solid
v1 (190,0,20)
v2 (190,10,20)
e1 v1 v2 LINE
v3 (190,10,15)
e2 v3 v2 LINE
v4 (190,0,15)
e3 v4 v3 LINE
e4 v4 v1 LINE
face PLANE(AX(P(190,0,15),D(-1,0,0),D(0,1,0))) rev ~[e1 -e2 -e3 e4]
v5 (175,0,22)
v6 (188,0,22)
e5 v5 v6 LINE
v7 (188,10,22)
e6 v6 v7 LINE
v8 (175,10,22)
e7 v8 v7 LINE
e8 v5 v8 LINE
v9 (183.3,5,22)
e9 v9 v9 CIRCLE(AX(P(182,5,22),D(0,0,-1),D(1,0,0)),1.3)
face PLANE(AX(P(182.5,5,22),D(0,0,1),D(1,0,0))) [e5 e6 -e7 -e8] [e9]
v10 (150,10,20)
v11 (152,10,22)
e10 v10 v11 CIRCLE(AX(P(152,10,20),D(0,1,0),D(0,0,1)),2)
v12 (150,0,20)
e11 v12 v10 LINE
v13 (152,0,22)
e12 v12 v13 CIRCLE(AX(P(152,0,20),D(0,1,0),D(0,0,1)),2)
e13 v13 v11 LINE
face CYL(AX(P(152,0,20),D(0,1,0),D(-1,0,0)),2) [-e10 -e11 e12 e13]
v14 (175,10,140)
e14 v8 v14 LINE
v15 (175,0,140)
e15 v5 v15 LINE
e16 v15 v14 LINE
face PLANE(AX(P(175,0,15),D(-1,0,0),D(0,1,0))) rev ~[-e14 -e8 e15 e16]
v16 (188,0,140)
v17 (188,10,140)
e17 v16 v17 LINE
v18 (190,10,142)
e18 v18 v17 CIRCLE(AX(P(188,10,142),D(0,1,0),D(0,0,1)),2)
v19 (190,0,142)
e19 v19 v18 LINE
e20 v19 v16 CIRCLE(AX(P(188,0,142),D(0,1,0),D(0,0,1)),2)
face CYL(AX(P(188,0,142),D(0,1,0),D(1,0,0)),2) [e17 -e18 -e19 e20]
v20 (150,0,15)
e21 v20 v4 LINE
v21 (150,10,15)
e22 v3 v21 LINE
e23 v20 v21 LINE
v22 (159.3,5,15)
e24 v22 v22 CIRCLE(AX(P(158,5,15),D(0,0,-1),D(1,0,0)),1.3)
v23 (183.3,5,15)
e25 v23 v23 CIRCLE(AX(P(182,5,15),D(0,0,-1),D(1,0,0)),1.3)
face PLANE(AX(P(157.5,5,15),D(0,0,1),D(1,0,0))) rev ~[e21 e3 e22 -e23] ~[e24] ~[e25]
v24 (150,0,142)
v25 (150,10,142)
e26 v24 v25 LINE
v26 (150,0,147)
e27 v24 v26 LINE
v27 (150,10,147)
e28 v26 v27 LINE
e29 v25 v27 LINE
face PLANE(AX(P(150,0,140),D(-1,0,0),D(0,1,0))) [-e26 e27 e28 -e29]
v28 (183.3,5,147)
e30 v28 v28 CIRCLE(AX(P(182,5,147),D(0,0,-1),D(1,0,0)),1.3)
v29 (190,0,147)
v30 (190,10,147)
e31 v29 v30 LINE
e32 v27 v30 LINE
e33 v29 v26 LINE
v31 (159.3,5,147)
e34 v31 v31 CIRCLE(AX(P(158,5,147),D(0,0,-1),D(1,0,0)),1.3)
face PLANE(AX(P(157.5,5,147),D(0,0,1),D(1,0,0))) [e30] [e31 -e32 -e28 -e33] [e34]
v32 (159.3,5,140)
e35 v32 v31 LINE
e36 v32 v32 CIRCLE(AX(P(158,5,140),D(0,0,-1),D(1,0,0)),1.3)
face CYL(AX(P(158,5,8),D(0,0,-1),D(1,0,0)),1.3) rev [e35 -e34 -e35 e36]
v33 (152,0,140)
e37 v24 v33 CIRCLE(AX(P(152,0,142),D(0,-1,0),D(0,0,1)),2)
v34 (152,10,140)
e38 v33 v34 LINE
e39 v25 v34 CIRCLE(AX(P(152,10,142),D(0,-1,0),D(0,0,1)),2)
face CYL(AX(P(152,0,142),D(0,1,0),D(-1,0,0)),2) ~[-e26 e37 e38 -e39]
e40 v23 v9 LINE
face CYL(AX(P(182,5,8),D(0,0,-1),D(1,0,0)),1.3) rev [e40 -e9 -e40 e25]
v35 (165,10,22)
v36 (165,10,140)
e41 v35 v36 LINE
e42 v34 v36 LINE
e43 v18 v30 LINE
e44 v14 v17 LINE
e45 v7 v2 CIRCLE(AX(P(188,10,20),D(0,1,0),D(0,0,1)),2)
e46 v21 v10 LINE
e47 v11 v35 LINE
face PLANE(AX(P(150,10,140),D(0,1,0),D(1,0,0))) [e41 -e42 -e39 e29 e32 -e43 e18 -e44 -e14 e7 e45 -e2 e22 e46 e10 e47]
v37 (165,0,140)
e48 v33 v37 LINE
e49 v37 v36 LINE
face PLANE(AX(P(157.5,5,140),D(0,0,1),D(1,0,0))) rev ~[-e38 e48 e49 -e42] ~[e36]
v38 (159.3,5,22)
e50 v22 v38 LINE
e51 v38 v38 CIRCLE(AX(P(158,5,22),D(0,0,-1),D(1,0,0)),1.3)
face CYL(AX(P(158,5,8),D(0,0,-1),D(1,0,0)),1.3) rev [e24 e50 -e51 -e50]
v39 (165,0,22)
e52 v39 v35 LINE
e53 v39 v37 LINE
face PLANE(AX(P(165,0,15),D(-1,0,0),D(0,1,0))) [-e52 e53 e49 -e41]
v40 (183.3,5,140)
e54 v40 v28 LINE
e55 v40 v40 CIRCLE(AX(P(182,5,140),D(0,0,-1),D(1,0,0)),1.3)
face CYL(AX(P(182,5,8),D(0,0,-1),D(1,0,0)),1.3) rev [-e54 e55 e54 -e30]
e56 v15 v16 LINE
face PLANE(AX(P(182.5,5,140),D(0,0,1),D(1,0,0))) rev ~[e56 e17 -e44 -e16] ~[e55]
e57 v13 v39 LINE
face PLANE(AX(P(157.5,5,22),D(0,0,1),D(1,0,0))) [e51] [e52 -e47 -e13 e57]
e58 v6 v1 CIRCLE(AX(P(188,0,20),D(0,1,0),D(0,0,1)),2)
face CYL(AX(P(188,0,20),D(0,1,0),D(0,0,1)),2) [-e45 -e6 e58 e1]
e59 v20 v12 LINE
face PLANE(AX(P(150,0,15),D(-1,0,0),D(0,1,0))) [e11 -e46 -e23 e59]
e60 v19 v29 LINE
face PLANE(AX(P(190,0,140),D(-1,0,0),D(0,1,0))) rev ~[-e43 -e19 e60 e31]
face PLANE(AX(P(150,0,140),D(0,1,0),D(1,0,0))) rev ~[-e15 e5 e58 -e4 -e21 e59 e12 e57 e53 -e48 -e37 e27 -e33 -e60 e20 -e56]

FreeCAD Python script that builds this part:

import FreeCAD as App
import Part
import Sketcher
Q = App.Units.Quantity


def edges_at(feature, points):
    """Names of the edges that pass closest to the given points."""
    edges = feature.Shape.Edges
    near = lambda p: min(range(len(edges)), key=lambda i: edges[i].distToShape(Part.Vertex(*p))[0])
    return sorted({f"Edge{near(p) + 1}" for p in points})


def add_polygon(sketch, points):
    """Adds a closed chain of lines whose ends are joined by coincident constraints."""
    first, n = sketch.GeometryCount, len(points)
    for a, b in zip(points, points[1:] + points[:1]):
        sketch.addGeometry(Part.LineSegment(App.Vector(*a, 0), App.Vector(*b, 0)), False)
    for i in range(n):
        sketch.addConstraint(Sketcher.Constraint("Coincident", first + i, 2, first + (i + 1) % n, 1))

doc = App.newDocument("Part")
params = doc.addObject("Spreadsheet::Sheet", "Params")
for row, (alias, value) in enumerate([
    ("sketch1_diameter", "2.6 mm"),
    ("pad1_length", "146 mm"),
    ("sketch2_diameter", "2.6 mm"),
    ("pad2_length", "146 mm"),
    ("sketch3_width", "15 mm"),
    ("sketch3_height", "10 mm"),
    ("pad3_length", "7 mm"),
    ("sketch4_width", "10 mm"),
    ("pad4_length", "132 mm"),
    ("sketch5_width", "15 mm"),
    ("sketch5_height", "10 mm"),
    ("pad5_length", "7 mm"),
    ("sketch6_width", "15 mm"),
    ("sketch6_height", "10 mm"),
    ("pad6_length", "7 mm"),
    ("sketch7_width", "15 mm"),
    ("sketch7_height", "10 mm"),
    ("pad7_length", "7 mm"),
    ("fillet_radius", "2 mm"),
], start=1):
    params.set(f"A{row}", alias)
    params.set(f"B{row}", "=" + value)
    params.setAlias(f"B{row}", alias)

body = doc.addObject("PartDesign::Body", "Body")

# Sketch on XY plane
sketch1 = doc.addObject("Sketcher::SketchObject", "Sketch")
body.addObject(sketch1)
sketch1.AttachmentSupport = (doc.XY_Plane, [""])
sketch1.MapMode = "FlatFace"
sketch1.AttachmentOffset = App.Placement(App.Vector(0, 0, 8), App.Rotation())
sketch1.addGeometry(Part.Circle(App.Vector(182, 5, 0), App.Vector(0, 0, 1), 1.3), False)
sketch1.addConstraint([
    Sketcher.Constraint("Diameter", 0, Q("2.6 mm")),
    Sketcher.Constraint("DistanceX", -1, 1, 0, 3, Q("182 mm")),
    Sketcher.Constraint("DistanceY", -1, 1, 0, 3, Q("5 mm")),
])
sketch1.setExpression("Constraints[0]", "Params.sketch1_diameter")
pad1 = doc.addObject("PartDesign::Pad", "Pad")
body.addObject(pad1)
pad1.Profile = sketch1
pad1.setExpression("Length", "Params.pad1_length")
body2 = doc.addObject("PartDesign::Body", "Body001")

# Sketch on XY plane
sketch2 = doc.addObject("Sketcher::SketchObject", "Sketch001")
body2.addObject(sketch2)
sketch2.AttachmentSupport = (doc.getObject("XY_Plane001"), [""])
sketch2.MapMode = "FlatFace"
sketch2.AttachmentOffset = App.Placement(App.Vector(0, 0, 8), App.Rotation())
sketch2.addGeometry(Part.Circle(App.Vector(158, 5, 0), App.Vector(0, 0, 1), 1.3), False)
sketch2.addConstraint([
    Sketcher.Constraint("Diameter", 0, Q("2.6 mm")),
    Sketcher.Constraint("DistanceX", -1, 1, 0, 3, Q("158 mm")),
    Sketcher.Constraint("DistanceY", -1, 1, 0, 3, Q("5 mm")),
])
sketch2.setExpression("Constraints[0]", "Params.sketch2_diameter")
pad2 = doc.addObject("PartDesign::Pad", "Pad001")
body2.addObject(pad2)
pad2.Profile = sketch2
pad2.setExpression("Length", "Params.pad2_length")
body3 = doc.addObject("PartDesign::Body", "Body002")

# Sketch on XY plane
sketch3 = doc.addObject("Sketcher::SketchObject", "Sketch002")
body3.addObject(sketch3)
sketch3.AttachmentSupport = (doc.getObject("XY_Plane002"), [""])
sketch3.MapMode = "FlatFace"
sketch3.AttachmentOffset = App.Placement(App.Vector(0, 0, 15), App.Rotation())
add_polygon(sketch3, [(175, 10), (175, 0), (190, 0), (190, 10)])  # lines 0-3
sketch3.addConstraint([
    Sketcher.Constraint("Vertical", 0),
    Sketcher.Constraint("Horizontal", 1),
    Sketcher.Constraint("Vertical", 2),
    Sketcher.Constraint("Horizontal", 3),
    Sketcher.Constraint("PointOnObject", 0, 2, -1),
    Sketcher.Constraint("DistanceX", 1, 1, 1, 2, Q("15 mm")),
    Sketcher.Constraint("DistanceY", 0, 2, 0, 1, Q("10 mm")),
    Sketcher.Constraint("DistanceX", -1, 1, 0, 2, Q("175 mm")),
])
sketch3.setExpression("Constraints[9]", "Params.sketch3_width")
sketch3.setExpression("Constraints[10]", "Params.sketch3_height")
pad3 = doc.addObject("PartDesign::Pad", "Pad002")
body3.addObject(pad3)
pad3.Profile = sketch3
pad3.setExpression("Length", "Params.pad3_length")
body4 = doc.addObject("PartDesign::Body", "Body003")

# Sketch on XY plane
sketch4 = doc.addObject("Sketcher::SketchObject", "Sketch003")
body4.addObject(sketch4)
sketch4.AttachmentSupport = (doc.getObject("XY_Plane003"), [""])
sketch4.MapMode = "FlatFace"
sketch4.AttachmentOffset = App.Placement(App.Vector(0, 0, 15), App.Rotation())
add_polygon(sketch4, [(165, 10), (165, 0), (175, 0), (175, 10)])  # lines 0-3
sketch4.addConstraint([
    Sketcher.Constraint("Vertical", 0),
    Sketcher.Constraint("Horizontal", 1),
    Sketcher.Constraint("Vertical", 2),
    Sketcher.Constraint("Horizontal", 3),
    Sketcher.Constraint("PointOnObject", 0, 2, -1),
    Sketcher.Constraint("Equal", 3, 0),
    Sketcher.Constraint("DistanceX", 1, 1, 1, 2, Q("10 mm")),
    Sketcher.Constraint("DistanceX", -1, 1, 0, 2, Q("165 mm")),
])
sketch4.setExpression("Constraints[10]", "Params.sketch4_width")
pad4 = doc.addObject("PartDesign::Pad", "Pad003")
body4.addObject(pad4)
pad4.Profile = sketch4
pad4.setExpression("Length", "Params.pad4_length")
body5 = doc.addObject("PartDesign::Body", "Body004")

# Sketch on XY plane
sketch5 = doc.addObject("Sketcher::SketchObject", "Sketch004")
body5.addObject(sketch5)
sketch5.AttachmentSupport = (doc.getObject("XY_Plane004"), [""])
sketch5.MapMode = "FlatFace"
sketch5.AttachmentOffset = App.Placement(App.Vector(0, 0, 15), App.Rotation())
add_polygon(sketch5, [(150, 10), (150, 0), (165, 0), (165, 10)])  # lines 0-3
sketch5.addConstraint([
    Sketcher.Constraint("Vertical", 0),
    Sketcher.Constraint("Horizontal", 1),
    Sketcher.Constraint("Vertical", 2),
    Sketcher.Constraint("Horizontal", 3),
    Sketcher.Constraint("PointOnObject", 0, 2, -1),
    Sketcher.Constraint("DistanceX", 1, 1, 1, 2, Q("15 mm")),
    Sketcher.Constraint("DistanceY", 0, 2, 0, 1, Q("10 mm")),
    Sketcher.Constraint("DistanceX", -1, 1, 0, 2, Q("150 mm")),
])
sketch5.setExpression("Constraints[9]", "Params.sketch5_width")
sketch5.setExpression("Constraints[10]", "Params.sketch5_height")
pad5 = doc.addObject("PartDesign::Pad", "Pad004")
body5.addObject(pad5)
pad5.Profile = sketch5
pad5.setExpression("Length", "Params.pad5_length")
body6 = doc.addObject("PartDesign::Body", "Body005")

# Sketch on XY plane
sketch6 = doc.addObject("Sketcher::SketchObject", "Sketch005")
body6.addObject(sketch6)
sketch6.AttachmentSupport = (doc.getObject("XY_Plane005"), [""])
sketch6.MapMode = "FlatFace"
sketch6.AttachmentOffset = App.Placement(App.Vector(0, 0, 140), App.Rotation())
add_polygon(sketch6, [(150, 10), (150, 0), (165, 0), (165, 10)])  # lines 0-3
sketch6.addConstraint([
    Sketcher.Constraint("Vertical", 0),
    Sketcher.Constraint("Horizontal", 1),
    Sketcher.Constraint("Vertical", 2),
    Sketcher.Constraint("Horizontal", 3),
    Sketcher.Constraint("PointOnObject", 0, 2, -1),
    Sketcher.Constraint("DistanceX", 1, 1, 1, 2, Q("15 mm")),
    Sketcher.Constraint("DistanceY", 0, 2, 0, 1, Q("10 mm")),
    Sketcher.Constraint("DistanceX", -1, 1, 0, 2, Q("150 mm")),
])
sketch6.setExpression("Constraints[9]", "Params.sketch6_width")
sketch6.setExpression("Constraints[10]", "Params.sketch6_height")
pad6 = doc.addObject("PartDesign::Pad", "Pad005")
body6.addObject(pad6)
pad6.Profile = sketch6
pad6.setExpression("Length", "Params.pad6_length")
body7 = doc.addObject("PartDesign::Body", "Body006")
body7.AllowCompound = True

# Sketch on XY plane
sketch7 = doc.addObject("Sketcher::SketchObject", "Sketch006")
body7.addObject(sketch7)
sketch7.AttachmentSupport = (doc.getObject("XY_Plane006"), [""])
sketch7.MapMode = "FlatFace"
sketch7.AttachmentOffset = App.Placement(App.Vector(0, 0, 140), App.Rotation())
add_polygon(sketch7, [(175, 10), (175, 0), (190, 0), (190, 10)])  # lines 0-3
sketch7.addConstraint([
    Sketcher.Constraint("Vertical", 0),
    Sketcher.Constraint("Horizontal", 1),
    Sketcher.Constraint("Vertical", 2),
    Sketcher.Constraint("Horizontal", 3),
    Sketcher.Constraint("PointOnObject", 0, 2, -1),
    Sketcher.Constraint("DistanceX", 1, 1, 1, 2, Q("15 mm")),
    Sketcher.Constraint("DistanceY", 0, 2, 0, 1, Q("10 mm")),
    Sketcher.Constraint("DistanceX", -1, 1, 0, 2, Q("175 mm")),
])
sketch7.setExpression("Constraints[9]", "Params.sketch7_width")
sketch7.setExpression("Constraints[10]", "Params.sketch7_height")
pad7 = doc.addObject("PartDesign::Pad", "Pad006")
body7.addObject(pad7)
pad7.Profile = sketch7
pad7.setExpression("Length", "Params.pad7_length")
doc.recompute()

boolean = doc.addObject("PartDesign::Boolean", "Boolean")
body7.addObject(boolean)
boolean.Type = "Fuse"
boolean.addObjects([body3])
doc.recompute()

boolean2 = doc.addObject("PartDesign::Boolean", "Boolean001")
body7.addObject(boolean2)
boolean2.Type = "Fuse"
boolean2.addObjects([body4])
doc.recompute()

boolean3 = doc.addObject("PartDesign::Boolean", "Boolean002")
body7.addObject(boolean3)
boolean3.Type = "Fuse"
boolean3.addObjects([body5])
doc.recompute()

boolean4 = doc.addObject("PartDesign::Boolean", "Boolean003")
body7.addObject(boolean4)
boolean4.Type = "Fuse"
boolean4.addObjects([body6])
doc.recompute()

fillet = doc.addObject("PartDesign::Fillet", "Fillet")
body7.addObject(fillet)
fillet.Base = (boolean4, edges_at(boolean4, [
    (190, 5, 140),
    (190, 5, 22),
    (150, 5, 22),
    (150, 5, 140),
]))
fillet.setExpression("Radius", "Params.fillet_radius")
doc.recompute()

boolean5 = doc.addObject("PartDesign::Boolean", "Boolean004")
body7.addObject(boolean5)
boolean5.Type = "Cut"
boolean5.addObjects([body2])
doc.recompute()

boolean6 = doc.addObject("PartDesign::Boolean", "Boolean005")
body7.addObject(boolean6)
boolean6.Type = "Cut"
boolean6.addObjects([body])

doc.recompute()
